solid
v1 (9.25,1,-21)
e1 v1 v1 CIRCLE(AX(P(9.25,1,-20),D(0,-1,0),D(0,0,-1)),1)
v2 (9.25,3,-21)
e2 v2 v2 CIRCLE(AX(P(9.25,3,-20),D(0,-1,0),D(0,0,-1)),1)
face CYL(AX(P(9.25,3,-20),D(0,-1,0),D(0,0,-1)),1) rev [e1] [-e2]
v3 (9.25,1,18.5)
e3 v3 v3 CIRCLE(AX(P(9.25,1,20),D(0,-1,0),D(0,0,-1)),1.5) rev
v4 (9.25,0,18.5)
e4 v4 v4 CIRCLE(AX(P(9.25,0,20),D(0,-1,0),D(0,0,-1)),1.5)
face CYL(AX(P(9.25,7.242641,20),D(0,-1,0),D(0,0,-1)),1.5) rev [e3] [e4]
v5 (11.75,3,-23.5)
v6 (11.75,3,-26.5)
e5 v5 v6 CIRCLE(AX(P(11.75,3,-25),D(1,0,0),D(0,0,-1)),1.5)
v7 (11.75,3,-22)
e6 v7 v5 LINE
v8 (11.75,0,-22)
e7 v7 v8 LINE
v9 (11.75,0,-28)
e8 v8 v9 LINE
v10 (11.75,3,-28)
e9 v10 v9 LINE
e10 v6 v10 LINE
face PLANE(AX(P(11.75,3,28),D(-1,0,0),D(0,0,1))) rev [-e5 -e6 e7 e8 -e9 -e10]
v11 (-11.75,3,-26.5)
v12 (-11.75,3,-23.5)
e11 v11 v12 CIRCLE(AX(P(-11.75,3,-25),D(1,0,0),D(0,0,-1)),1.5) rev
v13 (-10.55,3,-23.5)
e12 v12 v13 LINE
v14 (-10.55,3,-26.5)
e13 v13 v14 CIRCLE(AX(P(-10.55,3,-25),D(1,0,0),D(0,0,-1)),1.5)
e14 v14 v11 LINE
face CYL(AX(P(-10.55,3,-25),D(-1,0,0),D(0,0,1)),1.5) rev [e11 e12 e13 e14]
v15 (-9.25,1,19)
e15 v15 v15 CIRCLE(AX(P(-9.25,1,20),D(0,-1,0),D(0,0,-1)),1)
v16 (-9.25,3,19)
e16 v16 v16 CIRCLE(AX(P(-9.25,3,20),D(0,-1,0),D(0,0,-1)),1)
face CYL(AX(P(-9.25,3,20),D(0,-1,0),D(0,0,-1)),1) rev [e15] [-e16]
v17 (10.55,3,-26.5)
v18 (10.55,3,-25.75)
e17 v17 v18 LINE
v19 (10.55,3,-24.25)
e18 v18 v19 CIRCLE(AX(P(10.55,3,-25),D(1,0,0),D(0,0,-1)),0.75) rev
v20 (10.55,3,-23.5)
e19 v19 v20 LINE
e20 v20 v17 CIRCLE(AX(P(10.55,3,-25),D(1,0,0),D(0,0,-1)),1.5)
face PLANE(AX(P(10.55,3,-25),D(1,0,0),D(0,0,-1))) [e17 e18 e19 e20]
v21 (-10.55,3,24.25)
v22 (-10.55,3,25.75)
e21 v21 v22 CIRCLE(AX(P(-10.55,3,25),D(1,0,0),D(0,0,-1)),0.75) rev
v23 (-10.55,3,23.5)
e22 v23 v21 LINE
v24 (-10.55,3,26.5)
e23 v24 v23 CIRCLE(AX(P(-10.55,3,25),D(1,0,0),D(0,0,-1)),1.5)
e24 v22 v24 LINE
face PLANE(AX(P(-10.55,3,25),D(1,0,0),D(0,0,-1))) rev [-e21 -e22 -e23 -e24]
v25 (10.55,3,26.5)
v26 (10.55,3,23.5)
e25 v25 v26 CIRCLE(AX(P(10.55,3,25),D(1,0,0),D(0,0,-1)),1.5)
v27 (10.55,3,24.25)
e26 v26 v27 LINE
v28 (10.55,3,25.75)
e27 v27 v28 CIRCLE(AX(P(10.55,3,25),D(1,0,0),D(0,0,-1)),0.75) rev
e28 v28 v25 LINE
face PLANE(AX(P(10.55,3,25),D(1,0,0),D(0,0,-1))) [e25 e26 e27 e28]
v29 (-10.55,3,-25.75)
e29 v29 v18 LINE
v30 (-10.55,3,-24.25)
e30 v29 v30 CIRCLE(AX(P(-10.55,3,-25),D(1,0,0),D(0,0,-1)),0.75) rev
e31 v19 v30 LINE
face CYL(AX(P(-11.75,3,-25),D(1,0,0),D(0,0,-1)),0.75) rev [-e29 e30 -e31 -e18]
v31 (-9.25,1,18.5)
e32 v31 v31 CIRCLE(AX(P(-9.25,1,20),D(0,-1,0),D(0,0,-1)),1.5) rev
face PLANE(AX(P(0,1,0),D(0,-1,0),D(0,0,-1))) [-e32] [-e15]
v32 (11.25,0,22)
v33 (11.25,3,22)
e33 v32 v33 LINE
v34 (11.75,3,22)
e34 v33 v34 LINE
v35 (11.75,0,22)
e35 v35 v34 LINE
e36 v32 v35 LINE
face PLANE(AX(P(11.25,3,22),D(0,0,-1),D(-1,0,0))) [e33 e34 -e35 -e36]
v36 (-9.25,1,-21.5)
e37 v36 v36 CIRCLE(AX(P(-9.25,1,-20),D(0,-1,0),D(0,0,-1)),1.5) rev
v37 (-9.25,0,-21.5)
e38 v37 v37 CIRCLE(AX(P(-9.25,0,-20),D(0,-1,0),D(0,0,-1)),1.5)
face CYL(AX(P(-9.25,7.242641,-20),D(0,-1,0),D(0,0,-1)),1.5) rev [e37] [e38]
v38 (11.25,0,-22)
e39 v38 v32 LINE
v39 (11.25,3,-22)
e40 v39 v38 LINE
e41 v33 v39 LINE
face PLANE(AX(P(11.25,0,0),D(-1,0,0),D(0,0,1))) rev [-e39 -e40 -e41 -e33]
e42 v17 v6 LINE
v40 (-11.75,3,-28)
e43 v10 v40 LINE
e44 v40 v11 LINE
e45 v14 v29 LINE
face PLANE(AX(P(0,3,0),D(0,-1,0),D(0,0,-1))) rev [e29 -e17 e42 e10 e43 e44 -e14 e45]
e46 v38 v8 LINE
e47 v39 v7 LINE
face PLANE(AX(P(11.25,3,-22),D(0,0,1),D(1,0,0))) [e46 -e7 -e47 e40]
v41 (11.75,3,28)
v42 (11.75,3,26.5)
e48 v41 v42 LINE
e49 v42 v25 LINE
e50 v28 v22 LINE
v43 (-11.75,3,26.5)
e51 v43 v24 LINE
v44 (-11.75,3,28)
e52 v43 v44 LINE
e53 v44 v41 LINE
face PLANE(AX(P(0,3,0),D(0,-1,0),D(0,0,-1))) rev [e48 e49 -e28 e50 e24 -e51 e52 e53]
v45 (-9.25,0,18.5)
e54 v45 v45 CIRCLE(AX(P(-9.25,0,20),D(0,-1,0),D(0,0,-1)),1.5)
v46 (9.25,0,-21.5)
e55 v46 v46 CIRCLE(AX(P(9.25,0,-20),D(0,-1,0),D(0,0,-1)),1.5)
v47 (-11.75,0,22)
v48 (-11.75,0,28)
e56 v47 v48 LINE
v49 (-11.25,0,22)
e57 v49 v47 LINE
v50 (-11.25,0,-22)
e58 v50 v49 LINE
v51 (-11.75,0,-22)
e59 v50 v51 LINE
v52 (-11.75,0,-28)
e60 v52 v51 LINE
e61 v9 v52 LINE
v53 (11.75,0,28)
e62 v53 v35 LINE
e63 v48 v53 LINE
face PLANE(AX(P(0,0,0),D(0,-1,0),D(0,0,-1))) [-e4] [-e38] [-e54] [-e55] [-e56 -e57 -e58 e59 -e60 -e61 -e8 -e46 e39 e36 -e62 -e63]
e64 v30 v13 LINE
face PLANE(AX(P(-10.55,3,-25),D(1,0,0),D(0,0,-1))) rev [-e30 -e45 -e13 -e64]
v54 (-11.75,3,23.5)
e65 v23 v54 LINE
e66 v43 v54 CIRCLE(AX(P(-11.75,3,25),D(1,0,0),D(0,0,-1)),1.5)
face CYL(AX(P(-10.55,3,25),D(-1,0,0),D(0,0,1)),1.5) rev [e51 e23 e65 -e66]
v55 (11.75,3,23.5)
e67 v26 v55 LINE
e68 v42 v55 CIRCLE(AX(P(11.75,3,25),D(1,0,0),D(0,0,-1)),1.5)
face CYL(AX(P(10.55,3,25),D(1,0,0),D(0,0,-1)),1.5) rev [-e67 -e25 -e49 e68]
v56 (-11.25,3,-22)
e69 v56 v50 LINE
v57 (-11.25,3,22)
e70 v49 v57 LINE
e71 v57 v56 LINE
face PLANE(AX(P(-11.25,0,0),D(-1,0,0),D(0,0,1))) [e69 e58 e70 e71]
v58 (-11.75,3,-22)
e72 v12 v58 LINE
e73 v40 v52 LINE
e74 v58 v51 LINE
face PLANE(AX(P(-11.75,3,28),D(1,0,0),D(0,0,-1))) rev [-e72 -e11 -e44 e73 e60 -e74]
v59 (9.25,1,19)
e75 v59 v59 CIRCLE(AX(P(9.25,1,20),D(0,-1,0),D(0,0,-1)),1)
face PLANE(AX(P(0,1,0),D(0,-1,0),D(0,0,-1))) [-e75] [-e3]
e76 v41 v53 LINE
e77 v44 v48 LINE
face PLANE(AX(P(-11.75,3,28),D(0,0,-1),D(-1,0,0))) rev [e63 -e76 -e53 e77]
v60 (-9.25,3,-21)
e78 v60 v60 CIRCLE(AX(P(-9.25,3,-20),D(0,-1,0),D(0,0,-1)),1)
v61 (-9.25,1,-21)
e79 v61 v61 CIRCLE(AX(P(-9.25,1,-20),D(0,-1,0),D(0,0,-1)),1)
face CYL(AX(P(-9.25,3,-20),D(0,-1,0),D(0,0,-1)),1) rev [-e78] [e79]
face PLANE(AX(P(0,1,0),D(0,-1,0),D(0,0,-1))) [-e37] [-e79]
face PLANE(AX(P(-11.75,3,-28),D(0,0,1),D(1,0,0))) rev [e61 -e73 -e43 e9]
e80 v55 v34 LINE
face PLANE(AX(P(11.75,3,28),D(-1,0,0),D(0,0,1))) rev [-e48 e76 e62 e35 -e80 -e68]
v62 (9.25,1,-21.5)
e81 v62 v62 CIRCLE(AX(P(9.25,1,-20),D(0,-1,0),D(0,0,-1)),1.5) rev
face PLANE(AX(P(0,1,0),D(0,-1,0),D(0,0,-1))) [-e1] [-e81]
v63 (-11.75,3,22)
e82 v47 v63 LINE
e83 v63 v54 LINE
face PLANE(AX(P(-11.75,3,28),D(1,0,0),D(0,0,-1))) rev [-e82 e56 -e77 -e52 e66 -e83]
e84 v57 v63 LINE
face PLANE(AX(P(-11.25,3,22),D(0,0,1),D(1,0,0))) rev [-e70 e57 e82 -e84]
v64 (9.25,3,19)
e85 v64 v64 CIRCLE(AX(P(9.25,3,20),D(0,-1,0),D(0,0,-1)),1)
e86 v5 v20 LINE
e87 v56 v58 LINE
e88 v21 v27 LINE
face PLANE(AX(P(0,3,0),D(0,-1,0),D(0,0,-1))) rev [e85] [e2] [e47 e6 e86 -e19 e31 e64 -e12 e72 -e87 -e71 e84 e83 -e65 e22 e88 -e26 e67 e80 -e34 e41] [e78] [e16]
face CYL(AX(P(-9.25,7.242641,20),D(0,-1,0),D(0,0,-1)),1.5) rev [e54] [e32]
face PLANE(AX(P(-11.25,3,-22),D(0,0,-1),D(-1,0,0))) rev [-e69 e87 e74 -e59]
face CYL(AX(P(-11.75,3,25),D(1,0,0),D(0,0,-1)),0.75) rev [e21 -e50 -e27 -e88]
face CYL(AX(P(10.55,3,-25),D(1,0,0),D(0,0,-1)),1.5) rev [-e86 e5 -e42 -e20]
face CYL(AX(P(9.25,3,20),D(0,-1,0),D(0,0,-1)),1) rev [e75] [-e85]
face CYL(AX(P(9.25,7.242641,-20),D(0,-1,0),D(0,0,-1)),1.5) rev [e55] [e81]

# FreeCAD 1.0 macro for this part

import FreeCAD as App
import Part
import Sketcher

V = App.Vector
Q = App.Units.Quantity

doc = App.newDocument("Part")
body = doc.addObject("PartDesign::Body", "Body")

# Sketch on XZ plane
sketch1 = body.newObject("Sketcher::SketchObject", "Sketch")
sketch1.AttachmentSupport = (doc.getObject("XZ_Plane"), [""])
sketch1.MapMode = "FlatFace"
sketch1.addGeometry([
    Part.LineSegment(V(-12, -28, 0), V(-12, 28, 0)),
    Part.LineSegment(V(-12, 28, 0), V(12, 28, 0)),
    Part.LineSegment(V(12, 28, 0), V(12, -28, 0)),
    Part.LineSegment(V(12, -28, 0), V(-12, -28, 0)),
], False)
sketch1.addConstraint([
    Sketcher.Constraint("Coincident", 0, 2, 1, 1),
    Sketcher.Constraint("Coincident", 1, 2, 2, 1),
    Sketcher.Constraint("Coincident", 2, 2, 3, 1),
    Sketcher.Constraint("Coincident", 3, 2, 0, 1),
    Sketcher.Constraint("Vertical", 0),
    Sketcher.Constraint("Horizontal", 1),
    Sketcher.Constraint("Vertical", 2),
    Sketcher.Constraint("Horizontal", 3),
    Sketcher.Constraint("Symmetric", 0, 2, 2, 2, -1, 1),
    Sketcher.Constraint("DistanceY", 0, 1, 0, 2, Q("56 mm")),
    Sketcher.Constraint("DistanceX", 1, 1, 1, 2, Q("23.5 mm")),
])
pad1 = body.newObject("PartDesign::Pad", "Pad")
pad1.Profile = sketch1
pad1.Length = 3
pad1.Reversed = True

# Sketch on YZ plane
sketch2 = body.newObject("Sketcher::SketchObject", "Sketch001")
sketch2.AttachmentSupport = (doc.getObject("YZ_Plane"), [""])
sketch2.MapMode = "FlatFace"
sketch2.AttachmentOffset = App.Placement(V(0, 0, 11.75), App.Rotation())
sketch2.addGeometry([
    Part.Circle(V(3, 25, 0), V(0, 0, 1), 0.8),
    Part.Circle(V(3, -25, 0), V(0, 0, 1), 0.8),
], False)
sketch2.addConstraint([
    Sketcher.Constraint("Equal", 0, 1),
    Sketcher.Constraint("Symmetric", 0, 3, 1, 3, -1),
    Sketcher.Constraint("Diameter", 0, Q("1.5 mm")),
    Sketcher.Constraint("DistanceX", -1, 1, 0, 3, Q("3 mm")),
    Sketcher.Constraint("DistanceY", -1, 1, 0, 3, Q("25 mm")),
])
pocket1 = body.newObject("PartDesign::Pocket", "Pocket")
pocket1.Profile = sketch2
pocket1.Type = "ThroughAll"

# Sketch on YZ plane
sketch3 = body.newObject("Sketcher::SketchObject", "Sketch002")
sketch3.AttachmentSupport = (doc.getObject("YZ_Plane"), [""])
sketch3.MapMode = "FlatFace"
sketch3.AttachmentOffset = App.Placement(V(0, 0, 11.75), App.Rotation())
sketch3.addGeometry([
    Part.Circle(V(3, 25, 0), V(0, 0, 1), 1.5),
    Part.Circle(V(3, -25, 0), V(0, 0, 1), 1.5),
], False)
sketch3.addConstraint([
    Sketcher.Constraint("Equal", 0, 1),
    Sketcher.Constraint("Symmetric", 0, 3, 1, 3, -1),
    Sketcher.Constraint("Diameter", 0, Q("3 mm")),
    Sketcher.Constraint("DistanceX", -1, 1, 0, 3, Q("3 mm")),
    Sketcher.Constraint("DistanceY", -1, 1, 0, 3, Q("25 mm")),
])
pocket2 = body.newObject("PartDesign::Pocket", "Pocket001")
pocket2.Profile = sketch3
pocket2.Length = 1.2

# Sketch on YZ plane
sketch4 = body.newObject("Sketcher::SketchObject", "Sketch003")
sketch4.AttachmentSupport = (doc.getObject("YZ_Plane"), [""])
sketch4.MapMode = "FlatFace"
sketch4.AttachmentOffset = App.Placement(V(0, 0, -10.55), App.Rotation())
sketch4.addGeometry([
    Part.Circle(V(3, 25, 0), V(0, 0, 1), 1.5),
    Part.Circle(V(3, -25, 0), V(0, 0, 1), 1.5),
], False)
sketch4.addConstraint([
    Sketcher.Constraint("Equal", 0, 1),
    Sketcher.Constraint("Symmetric", 0, 3, 1, 3, -1),
    Sketcher.Constraint("Diameter", 0, Q("3 mm")),
    Sketcher.Constraint("DistanceX", -1, 1, 0, 3, Q("3 mm")),
    Sketcher.Constraint("DistanceY", -1, 1, 0, 3, Q("25 mm")),
])
pocket3 = body.newObject("PartDesign::Pocket", "Pocket002")
pocket3.Profile = sketch4
pocket3.Length = 1.2

# Sketch on XZ plane
sketch5 = body.newObject("Sketcher::SketchObject", "Sketch004")
sketch5.AttachmentSupport = (doc.getObject("XZ_Plane"), [""])
sketch5.MapMode = "FlatFace"
sketch5.addGeometry([
    Part.Circle(V(-9.2, -20, 0), V(0, 0, 1), 1.5),  # 0
    Part.Circle(V(-9.2, -20, 0), V(0, 0, 1), 1),  # 1
    Part.Circle(V(9.2, -20, 0), V(0, 0, 1), 1.5),  # 2
    Part.Circle(V(9.2, -20, 0), V(0, 0, 1), 1),  # 3
    Part.Circle(V(-9.2, 20, 0), V(0, 0, 1), 1.5),  # 4
    Part.Circle(V(-9.2, 20, 0), V(0, 0, 1), 1),  # 5
    Part.Circle(V(9.2, 20, 0), V(0, 0, 1), 1.5),  # 6
    Part.Circle(V(9.2, 20, 0), V(0, 0, 1), 1),  # 7
], False)
sketch5.addConstraint([
    Sketcher.Constraint("Coincident", 1, 3, 0, 3),
    Sketcher.Constraint("Coincident", 3, 3, 2, 3),
    Sketcher.Constraint("Coincident", 5, 3, 4, 3),
    Sketcher.Constraint("Coincident", 7, 3, 6, 3),
    Sketcher.Constraint("Equal", 0, 2),
    Sketcher.Constraint("Equal", 1, 3),
    Sketcher.Constraint("Equal", 2, 4),
    Sketcher.Constraint("Equal", 3, 5),
    Sketcher.Constraint("Equal", 4, 6),
    Sketcher.Constraint("Equal", 5, 7),
    Sketcher.Constraint("Symmetric", 2, 3, 4, 3, -1, 1),
    Sketcher.Constraint("Symmetric", 0, 3, 6, 3, -1, 1),
    Sketcher.Constraint("Symmetric", 0, 3, 2, 3, -2),
    Sketcher.Constraint("Diameter", 0, Q("3 mm")),
    Sketcher.Constraint("Diameter", 1, Q("2 mm")),
    Sketcher.Constraint("DistanceY", 0, 3, -1, 1, Q("20 mm")),
    Sketcher.Constraint("DistanceX", 0, 3, 2, 3, Q("18.5 mm")),
])
pocket4 = body.newObject("PartDesign::Pocket", "Pocket003")
pocket4.Profile = sketch5
pocket4.Length = 1

# Sketch on XZ plane
sketch6 = body.newObject("Sketcher::SketchObject", "Sketch005")
sketch6.AttachmentSupport = (doc.getObject("XZ_Plane"), [""])
sketch6.MapMode = "FlatFace"
sketch6.addGeometry([
    Part.Circle(V(-9.2, -20, 0), V(0, 0, 1), 1),
    Part.Circle(V(9.2, -20, 0), V(0, 0, 1), 1),
    Part.Circle(V(-9.2, 20, 0), V(0, 0, 1), 1),
    Part.Circle(V(9.2, 20, 0), V(0, 0, 1), 1),
], False)
sketch6.addConstraint([
    Sketcher.Constraint("Equal", 0, 1),
    Sketcher.Constraint("Equal", 1, 2),
    Sketcher.Constraint("Equal", 2, 3),
    Sketcher.Constraint("Symmetric", 1, 3, 2, 3, -1, 1),
    Sketcher.Constraint("Symmetric", 0, 3, 3, 3, -1, 1),
    Sketcher.Constraint("Symmetric", 0, 3, 1, 3, -2),
    Sketcher.Constraint("Diameter", 0, Q("2 mm")),
    Sketcher.Constraint("DistanceY", 0, 3, -1, 1, Q("20 mm")),
    Sketcher.Constraint("DistanceX", 0, 3, 1, 3, Q("18.5 mm")),
])
pocket5 = body.newObject("PartDesign::Pocket", "Pocket004")
pocket5.Profile = sketch6
pocket5.Type = "ThroughAll"

# Sketch on YZ plane
sketch7 = body.newObject("Sketcher::SketchObject", "Sketch006")
sketch7.AttachmentSupport = (doc.getObject("YZ_Plane"), [""])
sketch7.MapMode = "FlatFace"
sketch7.AttachmentOffset = App.Placement(V(0, 0, -11.75), App.Rotation())
sketch7.addGeometry([
    Part.LineSegment(V(3, -22, 0), V(0, -22, 0)),
    Part.LineSegment(V(0, -22, 0), V(0, 22, 0)),
    Part.LineSegment(V(0, 22, 0), V(3, 22, 0)),
    Part.LineSegment(V(3, 22, 0), V(3, -22, 0)),
], False)
sketch7.addConstraint([
    Sketcher.Constraint("Coincident", 0, 2, 1, 1),
    Sketcher.Constraint("Coincident", 1, 2, 2, 1),
    Sketcher.Constraint("Coincident", 2, 2, 3, 1),
    Sketcher.Constraint("Coincident", 3, 2, 0, 1),
    Sketcher.Constraint("Horizontal", 0),
    Sketcher.Constraint("Vertical", 1),
    Sketcher.Constraint("Horizontal", 2),
    Sketcher.Constraint("Vertical", 3),
    Sketcher.Constraint("Symmetric", 0, 2, 1, 2, -1, 1),
    Sketcher.Constraint("DistanceX", 0, 2, 0, 1, Q("3 mm")),
    Sketcher.Constraint("DistanceY", 1, 1, 1, 2, Q("44 mm")),
])
pocket6 = body.newObject("PartDesign::Pocket", "Pocket005")
pocket6.Profile = sketch7
pocket6.Length = 0.5
pocket6.Reversed = True

# Sketch on YZ plane
sketch8 = body.newObject("Sketcher::SketchObject", "Sketch007")
sketch8.AttachmentSupport = (doc.getObject("YZ_Plane"), [""])
sketch8.MapMode = "FlatFace"
sketch8.AttachmentOffset = App.Placement(V(0, 0, 11.75), App.Rotation())
sketch8.addGeometry([
    Part.LineSegment(V(3, -22, 0), V(0, -22, 0)),
    Part.LineSegment(V(0, -22, 0), V(0, 22, 0)),
    Part.LineSegment(V(0, 22, 0), V(3, 22, 0)),
    Part.LineSegment(V(3, 22, 0), V(3, -22, 0)),
], False)
sketch8.addConstraint([
    Sketcher.Constraint("Coincident", 0, 2, 1, 1),
    Sketcher.Constraint("Coincident", 1, 2, 2, 1),
    Sketcher.Constraint("Coincident", 2, 2, 3, 1),
    Sketcher.Constraint("Coincident", 3, 2, 0, 1),
    Sketcher.Constraint("Horizontal", 0),
    Sketcher.Constraint("Vertical", 1),
    Sketcher.Constraint("Horizontal", 2),
    Sketcher.Constraint("Vertical", 3),
    Sketcher.Constraint("Symmetric", 0, 2, 1, 2, -1, 1),
    Sketcher.Constraint("DistanceX", 0, 2, 0, 1, Q("3 mm")),
    Sketcher.Constraint("DistanceY", 1, 1, 1, 2, Q("44 mm")),
])
pocket7 = body.newObject("PartDesign::Pocket", "Pocket006")
pocket7.Profile = sketch8
pocket7.Length = 0.5

doc.recompute()
